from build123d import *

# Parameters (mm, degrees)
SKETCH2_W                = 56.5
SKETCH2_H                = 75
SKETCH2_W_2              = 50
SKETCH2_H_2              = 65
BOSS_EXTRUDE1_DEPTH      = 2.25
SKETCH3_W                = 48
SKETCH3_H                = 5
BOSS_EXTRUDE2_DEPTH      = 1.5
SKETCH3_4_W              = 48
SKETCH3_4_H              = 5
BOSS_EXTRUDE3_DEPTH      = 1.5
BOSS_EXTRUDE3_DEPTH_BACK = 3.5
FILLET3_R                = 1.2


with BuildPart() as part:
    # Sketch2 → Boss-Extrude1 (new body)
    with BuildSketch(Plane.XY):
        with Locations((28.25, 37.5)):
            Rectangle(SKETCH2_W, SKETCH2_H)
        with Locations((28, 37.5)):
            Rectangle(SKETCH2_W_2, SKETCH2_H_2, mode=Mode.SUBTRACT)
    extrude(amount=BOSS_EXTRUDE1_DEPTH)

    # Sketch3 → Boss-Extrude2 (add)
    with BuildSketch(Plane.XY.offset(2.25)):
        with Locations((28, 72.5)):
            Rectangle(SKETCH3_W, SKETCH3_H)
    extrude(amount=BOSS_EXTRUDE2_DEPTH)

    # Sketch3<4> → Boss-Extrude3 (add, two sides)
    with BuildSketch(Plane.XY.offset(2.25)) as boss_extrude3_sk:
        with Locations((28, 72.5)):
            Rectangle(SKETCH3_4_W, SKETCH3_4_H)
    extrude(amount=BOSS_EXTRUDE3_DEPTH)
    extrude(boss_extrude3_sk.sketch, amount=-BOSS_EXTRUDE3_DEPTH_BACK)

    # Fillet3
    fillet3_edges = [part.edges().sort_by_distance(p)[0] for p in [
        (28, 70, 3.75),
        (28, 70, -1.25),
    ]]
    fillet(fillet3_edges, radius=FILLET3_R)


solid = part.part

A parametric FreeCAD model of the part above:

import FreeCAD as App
import Part
import Sketcher
Q = App.Units.Quantity


def edges_at(feature, points):
    """Names of the edges that pass closest to the given points."""
    edges = feature.Shape.Edges
    near = lambda p: min(range(len(edges)), key=lambda i: edges[i].distToShape(Part.Vertex(*p))[0])
    return sorted({f"Edge{near(p) + 1}" for p in points})


def add_polygon(sketch, points):
    """Adds a closed chain of lines whose ends are joined by coincident constraints."""
    first, n = sketch.GeometryCount, len(points)
    for a, b in zip(points, points[1:] + points[:1]):
        sketch.addGeometry(Part.LineSegment(App.Vector(*a, 0), App.Vector(*b, 0)), False)
    for i in range(n):
        sketch.addConstraint(Sketcher.Constraint("Coincident", first + i, 2, first + (i + 1) % n, 1))

doc = App.newDocument("Part")
body = doc.addObject("PartDesign::Body", "Body")

# Sketch on XY plane
sketch1 = body.newObject("Sketcher::SketchObject", "Sketch")
sketch1.AttachmentSupport = (doc.getObject("XY_Plane"), [""])
sketch1.MapMode = "FlatFace"
add_polygon(sketch1, [(0, 75), (0, 0), (56, 0), (56, 75)])  # lines 0-3
add_polygon(sketch1, [(53, 5), (3, 5), (3, 70), (53, 70)])  # lines 4-7
sketch1.addConstraint([
    Sketcher.Constraint("Vertical", 0),
    Sketcher.Constraint("Horizontal", 1),
    Sketcher.Constraint("Vertical", 2),
    Sketcher.Constraint("Horizontal", 3),
    Sketcher.Constraint("Horizontal", 4),
    Sketcher.Constraint("Vertical", 5),
    Sketcher.Constraint("Horizontal", 6),
    Sketcher.Constraint("Vertical", 7),
    Sketcher.Constraint("Coincident", 0, 2, -1, 1),
    Sketcher.Constraint("DistanceX", 4, 2, 4, 1, Q("50 mm")),
    Sketcher.Constraint("DistanceY", 0, 2, 0, 1, Q("75 mm")),
    Sketcher.Constraint("DistanceY", 5, 1, 5, 2, Q("65 mm")),
    Sketcher.Constraint("DistanceX", 1, 1, 1, 2, Q("56.5 mm")),
    Sketcher.Constraint("DistanceX", -1, 1, 4, 2, Q("3 mm")),
    Sketcher.Constraint("DistanceY", -1, 1, 4, 2, Q("5 mm")),
])
pad1 = body.newObject("PartDesign::Pad", "Pad")
pad1.Profile = sketch1
pad1.Length = 2.25

# Sketch on XY plane
sketch2 = body.newObject("Sketcher::SketchObject", "Sketch001")
sketch2.AttachmentSupport = (doc.getObject("XY_Plane"), [""])
sketch2.MapMode = "FlatFace"
sketch2.AttachmentOffset = App.Placement(App.Vector(0, 0, 2.25), App.Rotation())
add_polygon(sketch2, [(4, 75), (4, 70), (52, 70), (52, 75)])  # lines 0-3
sketch2.addConstraint([
    Sketcher.Constraint("Vertical", 0),
    Sketcher.Constraint("Horizontal", 1),
    Sketcher.Constraint("Vertical", 2),
    Sketcher.Constraint("Horizontal", 3),
    Sketcher.Constraint("DistanceX", 1, 1, 1, 2, Q("48 mm")),
    Sketcher.Constraint("DistanceY", 0, 2, 0, 1, Q("5 mm")),
    Sketcher.Constraint("DistanceX", -1, 1, 0, 2, Q("4 mm")),
    Sketcher.Constraint("DistanceY", -1, 1, 0, 2, Q("70 mm")),
])
pad2 = body.newObject("PartDesign::Pad", "Pad001")
pad2.Profile = sketch2
pad2.Length = 1.5

# Sketch on XY plane
sketch3 = body.newObject("Sketcher::SketchObject", "Sketch002")
sketch3.AttachmentSupport = (doc.getObject("XY_Plane"), [""])
sketch3.MapMode = "FlatFace"
sketch3.AttachmentOffset = App.Placement(App.Vector(0, 0, 2.25), App.Rotation())
add_polygon(sketch3, [(4, 75), (4, 70), (52, 70), (52, 75)])  # lines 0-3
sketch3.addConstraint([
    Sketcher.Constraint("Vertical", 0),
    Sketcher.Constraint("Horizontal", 1),
    Sketcher.Constraint("Vertical", 2),
    Sketcher.Constraint("Horizontal", 3),
    Sketcher.Constraint("DistanceX", 1, 1, 1, 2, Q("48 mm")),
    Sketcher.Constraint("DistanceY", 0, 2, 0, 1, Q("5 mm")),
    Sketcher.Constraint("DistanceX", -1, 1, 0, 2, Q("4 mm")),
    Sketcher.Constraint("DistanceY", -1, 1, 0, 2, Q("70 mm")),
])
pad3 = body.newObject("PartDesign::Pad", "Pad002")
pad3.Profile = sketch3
pad3.Type = "TwoLengths"
pad3.Length = 1.5
pad3.Length2 = 3.5
doc.recompute()

fillet = body.newObject("PartDesign::Fillet", "Fillet")
fillet.Base = (pad3, edges_at(pad3, [(28, 70, 3.75), (28, 70, -1.25)]))
fillet.Radius = 1.2

doc.recompute()
